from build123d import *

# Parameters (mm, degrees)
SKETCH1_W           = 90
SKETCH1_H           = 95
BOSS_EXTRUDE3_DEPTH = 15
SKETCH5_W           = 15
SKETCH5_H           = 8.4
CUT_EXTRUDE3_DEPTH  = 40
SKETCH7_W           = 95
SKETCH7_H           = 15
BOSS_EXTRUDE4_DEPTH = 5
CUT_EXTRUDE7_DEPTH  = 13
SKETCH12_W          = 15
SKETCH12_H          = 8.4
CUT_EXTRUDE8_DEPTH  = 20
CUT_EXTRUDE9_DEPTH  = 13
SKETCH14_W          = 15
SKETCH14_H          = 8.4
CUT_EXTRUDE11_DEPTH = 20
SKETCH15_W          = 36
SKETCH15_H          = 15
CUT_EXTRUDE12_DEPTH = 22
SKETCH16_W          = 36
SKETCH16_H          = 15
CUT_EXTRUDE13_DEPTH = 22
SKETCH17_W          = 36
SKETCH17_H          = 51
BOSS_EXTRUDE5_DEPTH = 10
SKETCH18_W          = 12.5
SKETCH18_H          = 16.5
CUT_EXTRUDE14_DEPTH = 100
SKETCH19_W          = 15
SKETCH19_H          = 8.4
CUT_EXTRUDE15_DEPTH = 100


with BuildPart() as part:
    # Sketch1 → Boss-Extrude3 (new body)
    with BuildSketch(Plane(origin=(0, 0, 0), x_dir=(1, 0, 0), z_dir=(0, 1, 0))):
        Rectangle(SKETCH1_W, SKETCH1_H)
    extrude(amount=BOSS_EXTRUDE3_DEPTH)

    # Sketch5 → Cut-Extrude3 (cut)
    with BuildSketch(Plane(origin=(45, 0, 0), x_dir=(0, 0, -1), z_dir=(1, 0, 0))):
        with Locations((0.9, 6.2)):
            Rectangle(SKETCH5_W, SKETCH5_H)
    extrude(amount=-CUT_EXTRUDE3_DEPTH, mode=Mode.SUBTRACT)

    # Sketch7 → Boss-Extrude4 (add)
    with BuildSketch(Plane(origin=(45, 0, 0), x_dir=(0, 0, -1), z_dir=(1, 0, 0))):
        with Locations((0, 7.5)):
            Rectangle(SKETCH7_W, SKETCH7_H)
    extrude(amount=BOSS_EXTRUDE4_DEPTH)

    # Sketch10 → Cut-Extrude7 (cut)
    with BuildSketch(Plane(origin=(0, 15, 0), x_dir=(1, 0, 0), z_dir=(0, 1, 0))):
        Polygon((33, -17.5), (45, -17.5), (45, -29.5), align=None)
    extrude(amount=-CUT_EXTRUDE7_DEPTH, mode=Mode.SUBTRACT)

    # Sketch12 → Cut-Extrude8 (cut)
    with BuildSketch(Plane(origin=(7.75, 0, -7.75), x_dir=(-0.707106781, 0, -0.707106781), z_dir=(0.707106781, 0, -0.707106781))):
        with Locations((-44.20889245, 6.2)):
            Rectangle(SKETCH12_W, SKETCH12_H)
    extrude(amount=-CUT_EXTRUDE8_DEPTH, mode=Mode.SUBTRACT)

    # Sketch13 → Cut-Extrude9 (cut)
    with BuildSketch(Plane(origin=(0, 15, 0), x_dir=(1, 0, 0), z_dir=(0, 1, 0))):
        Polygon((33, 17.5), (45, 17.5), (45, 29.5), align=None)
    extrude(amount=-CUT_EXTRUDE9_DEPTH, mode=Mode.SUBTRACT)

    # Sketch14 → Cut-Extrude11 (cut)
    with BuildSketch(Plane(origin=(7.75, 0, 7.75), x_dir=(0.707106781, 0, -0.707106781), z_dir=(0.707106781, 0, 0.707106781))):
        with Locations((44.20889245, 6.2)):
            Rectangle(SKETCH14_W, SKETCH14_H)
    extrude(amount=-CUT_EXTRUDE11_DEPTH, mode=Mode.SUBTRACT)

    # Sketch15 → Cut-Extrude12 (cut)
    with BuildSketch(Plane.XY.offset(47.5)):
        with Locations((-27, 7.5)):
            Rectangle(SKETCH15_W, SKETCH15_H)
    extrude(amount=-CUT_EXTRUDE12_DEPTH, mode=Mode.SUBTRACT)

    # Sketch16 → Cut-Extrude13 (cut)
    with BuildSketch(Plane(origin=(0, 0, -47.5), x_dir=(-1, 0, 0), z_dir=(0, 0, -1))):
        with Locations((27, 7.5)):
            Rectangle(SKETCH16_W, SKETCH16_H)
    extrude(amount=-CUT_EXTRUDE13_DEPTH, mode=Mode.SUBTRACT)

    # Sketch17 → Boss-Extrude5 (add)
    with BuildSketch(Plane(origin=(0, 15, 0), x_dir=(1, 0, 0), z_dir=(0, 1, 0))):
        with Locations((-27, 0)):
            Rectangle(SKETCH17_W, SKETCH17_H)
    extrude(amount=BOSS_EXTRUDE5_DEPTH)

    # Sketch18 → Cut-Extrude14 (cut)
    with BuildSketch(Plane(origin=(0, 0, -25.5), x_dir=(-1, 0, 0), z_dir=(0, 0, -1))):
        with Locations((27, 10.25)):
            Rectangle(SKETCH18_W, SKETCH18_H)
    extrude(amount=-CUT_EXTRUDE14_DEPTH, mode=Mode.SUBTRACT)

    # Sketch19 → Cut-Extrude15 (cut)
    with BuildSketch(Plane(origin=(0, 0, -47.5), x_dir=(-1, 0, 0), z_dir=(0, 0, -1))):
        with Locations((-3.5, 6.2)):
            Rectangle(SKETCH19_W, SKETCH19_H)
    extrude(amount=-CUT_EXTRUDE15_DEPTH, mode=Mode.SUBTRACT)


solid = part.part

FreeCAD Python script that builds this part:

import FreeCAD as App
import Part
import Sketcher
Q = App.Units.Quantity


def add_polygon(sketch, points):
    """Adds a closed chain of lines whose ends are joined by coincident constraints."""
    first, n = sketch.GeometryCount, len(points)
    for a, b in zip(points, points[1:] + points[:1]):
        sketch.addGeometry(Part.LineSegment(App.Vector(*a, 0), App.Vector(*b, 0)), False)
    for i in range(n):
        sketch.addConstraint(Sketcher.Constraint("Coincident", first + i, 2, first + (i + 1) % n, 1))

doc = App.newDocument("Part")
body = doc.addObject("PartDesign::Body", "Body")

# Sketch on XZ plane
sketch1 = body.newObject("Sketcher::SketchObject", "Sketch")
sketch1.AttachmentSupport = (doc.getObject("XZ_Plane"), [""])
sketch1.MapMode = "FlatFace"
add_polygon(sketch1, [(-45, -48), (-45, 48), (45, 48), (45, -48)])  # lines 0-3
sketch1.addConstraint(Sketcher.Constraint("Vertical", 0))
sketch1.addConstraint(Sketcher.Constraint("Horizontal", 1))
sketch1.addConstraint(Sketcher.Constraint("Vertical", 2))
sketch1.addConstraint(Sketcher.Constraint("Horizontal", 3))
sketch1.addConstraint(Sketcher.Constraint("Symmetric", 0, 2, 2, 2, -1, 1))
sketch1.addConstraint(Sketcher.Constraint("DistanceX", 1, 1, 1, 2, Q("90 mm")))
sketch1.addConstraint(Sketcher.Constraint("DistanceY", 0, 1, 0, 2, Q("95 mm")))
pad1 = body.newObject("PartDesign::Pad", "Pad")
pad1.Profile = sketch1
pad1.Length = 15
pad1.Reversed = True

# Sketch on YZ plane
sketch2 = body.newObject("Sketcher::SketchObject", "Sketch001")
sketch2.AttachmentSupport = (doc.getObject("YZ_Plane"), [""])
sketch2.MapMode = "FlatFace"
sketch2.AttachmentOffset = App.Placement(App.Vector(0, 0, 45), App.Rotation())
add_polygon(sketch2, [(10, 7), (2, 7), (2, -8), (10, -8)])  # lines 0-3
sketch2.addConstraint(Sketcher.Constraint("Horizontal", 0))
sketch2.addConstraint(Sketcher.Constraint("Vertical", 1))
sketch2.addConstraint(Sketcher.Constraint("Horizontal", 2))
sketch2.addConstraint(Sketcher.Constraint("Vertical", 3))
sketch2.addConstraint(Sketcher.Constraint("DistanceY", 1, 2, 1, 1, Q("15 mm")))
sketch2.addConstraint(Sketcher.Constraint("DistanceX", 0, 2, 0, 1, Q("8.4 mm")))
sketch2.addConstraint(Sketcher.Constraint("DistanceX", -1, 1, 0, 2, Q("2 mm")))
sketch2.addConstraint(Sketcher.Constraint("DistanceY", -1, 1, 0, 2, Q("6.6 mm")))
pocket1 = body.newObject("PartDesign::Pocket", "Pocket")
pocket1.Profile = sketch2
pocket1.Length = 40

# Sketch on YZ plane
sketch3 = body.newObject("Sketcher::SketchObject", "Sketch002")
sketch3.AttachmentSupport = (doc.getObject("YZ_Plane"), [""])
sketch3.MapMode = "FlatFace"
sketch3.AttachmentOffset = App.Placement(App.Vector(0, 0, 45), App.Rotation())
add_polygon(sketch3, [(15, 48), (0, 48), (0, -48), (15, -48)])  # lines 0-3
sketch3.addConstraint(Sketcher.Constraint("Horizontal", 0))
sketch3.addConstraint(Sketcher.Constraint("Vertical", 1))
sketch3.addConstraint(Sketcher.Constraint("Horizontal", 2))
sketch3.addConstraint(Sketcher.Constraint("Vertical", 3))
sketch3.addConstraint(Sketcher.Constraint("Symmetric", 0, 2, 1, 2, -1, 1))
sketch3.addConstraint(Sketcher.Constraint("DistanceX", 0, 2, 0, 1, Q("15 mm")))
sketch3.addConstraint(Sketcher.Constraint("DistanceY", 1, 2, 1, 1, Q("95 mm")))
pad2 = body.newObject("PartDesign::Pad", "Pad001")
pad2.Profile = sketch3
pad2.Length = 5

# Sketch on XZ plane
sketch4 = body.newObject("Sketcher::SketchObject", "Sketch003")
sketch4.AttachmentSupport = (doc.getObject("XZ_Plane"), [""])
sketch4.MapMode = "FlatFace"
sketch4.AttachmentOffset = App.Placement(App.Vector(0, 0, -15), App.Rotation())
add_polygon(sketch4, [(45, 18), (33, 18), (45, 30)])  # lines 0-2
sketch4.addConstraint(Sketcher.Constraint("Horizontal", 0))
sketch4.addConstraint(Sketcher.Constraint("Vertical", 2))
sketch4.addConstraint(Sketcher.Constraint("Equal", 0, 2))
sketch4.addConstraint(Sketcher.Constraint("DistanceX", 0, 2, 0, 1, Q("12 mm")))
sketch4.addConstraint(Sketcher.Constraint("DistanceX", -1, 1, 0, 2, Q("33 mm")))
sketch4.addConstraint(Sketcher.Constraint("DistanceY", -1, 1, 0, 2, Q("17.5 mm")))
pocket2 = body.newObject("PartDesign::Pocket", "Pocket001")
pocket2.Profile = sketch4
pocket2.Length = 13
pocket2.Reversed = True

# Sketch on an angled plane
sketch5 = body.newObject("Sketcher::SketchObject", "Sketch004")
sketch5.Placement = App.Placement(App.Vector(7.75, 0, -7.75), App.Rotation(App.Vector(-0.707106781, 0, -0.707106781), App.Vector(0, 0.999999999, 0), App.Vector(0.707106781, 0, -0.707106781), "ZXY"))
add_polygon(sketch5, [(-52, 10), (-52, 2), (-37, 2), (-37, 10)])  # lines 0-3
sketch5.addConstraint(Sketcher.Constraint("Vertical", 0))
sketch5.addConstraint(Sketcher.Constraint("Horizontal", 1))
sketch5.addConstraint(Sketcher.Constraint("Vertical", 2))
sketch5.addConstraint(Sketcher.Constraint("Horizontal", 3))
sketch5.addConstraint(Sketcher.Constraint("DistanceX", 1, 1, 1, 2, Q("15 mm")))
sketch5.addConstraint(Sketcher.Constraint("DistanceY", 0, 2, 0, 1, Q("8.4 mm")))
sketch5.addConstraint(Sketcher.Constraint("DistanceY", -1, 1, 0, 2, Q("2 mm")))
sketch5.addConstraint(Sketcher.Constraint("DistanceX", 0, 2, -1, 1, Q("51.708892 mm")))
pocket3 = body.newObject("PartDesign::Pocket", "Pocket002")
pocket3.Profile = sketch5
pocket3.Length = 20

# Sketch on XZ plane
sketch6 = body.newObject("Sketcher::SketchObject", "Sketch005")
sketch6.AttachmentSupport = (doc.getObject("XZ_Plane"), [""])
sketch6.MapMode = "FlatFace"
sketch6.AttachmentOffset = App.Placement(App.Vector(0, 0, -15), App.Rotation())
add_polygon(sketch6, [(33, -18), (45, -18), (45, -30)])  # lines 0-2
sketch6.addConstraint(Sketcher.Constraint("Horizontal", 0))
sketch6.addConstraint(Sketcher.Constraint("Vertical", 1))
sketch6.addConstraint(Sketcher.Constraint("Equal", 0, 1))
sketch6.addConstraint(Sketcher.Constraint("DistanceX", 0, 1, 0, 2, Q("12 mm")))
sketch6.addConstraint(Sketcher.Constraint("DistanceX", -1, 1, 0, 2, Q("45 mm")))
sketch6.addConstraint(Sketcher.Constraint("DistanceY", 0, 2, -1, 1, Q("17.5 mm")))
pocket4 = body.newObject("PartDesign::Pocket", "Pocket003")
pocket4.Profile = sketch6
pocket4.Length = 13
pocket4.Reversed = True

# Sketch on an angled plane
sketch7 = body.newObject("Sketcher::SketchObject", "Sketch006")
sketch7.Placement = App.Placement(App.Vector(7.75, 0, 7.75), App.Rotation(App.Vector(0.707106781, 0, -0.707106781), App.Vector(0, 0.999999999, 0), App.Vector(0.707106781, 0, 0.707106781), "ZXY"))
add_polygon(sketch7, [(37, 10), (37, 2), (52, 2), (52, 10)])  # lines 0-3
sketch7.addConstraint(Sketcher.Constraint("Vertical", 0))
sketch7.addConstraint(Sketcher.Constraint("Horizontal", 1))
sketch7.addConstraint(Sketcher.Constraint("Vertical", 2))
sketch7.addConstraint(Sketcher.Constraint("Horizontal", 3))
sketch7.addConstraint(Sketcher.Constraint("DistanceX", 1, 1, 1, 2, Q("15 mm")))
sketch7.addConstraint(Sketcher.Constraint("DistanceY", 0, 2, 0, 1, Q("8.4 mm")))
sketch7.addConstraint(Sketcher.Constraint("DistanceY", -1, 1, 0, 2, Q("2 mm")))
sketch7.addConstraint(Sketcher.Constraint("DistanceX", -1, 1, 0, 2, Q("36.708892 mm")))
pocket5 = body.newObject("PartDesign::Pocket", "Pocket004")
pocket5.Profile = sketch7
pocket5.Length = 20

# Sketch on XY plane
sketch8 = body.newObject("Sketcher::SketchObject", "Sketch007")
sketch8.AttachmentSupport = (doc.getObject("XY_Plane"), [""])
sketch8.MapMode = "FlatFace"
sketch8.AttachmentOffset = App.Placement(App.Vector(0, 0, 47.5), App.Rotation())
add_polygon(sketch8, [(-45, 15), (-45, 0), (-9, 0), (-9, 15)])  # lines 0-3
sketch8.addConstraint(Sketcher.Constraint("Vertical", 0))
sketch8.addConstraint(Sketcher.Constraint("Horizontal", 1))
sketch8.addConstraint(Sketcher.Constraint("Vertical", 2))
sketch8.addConstraint(Sketcher.Constraint("Horizontal", 3))
sketch8.addConstraint(Sketcher.Constraint("PointOnObject", 0, 2, -1))
sketch8.addConstraint(Sketcher.Constraint("DistanceX", 1, 1, 1, 2, Q("36 mm")))
sketch8.addConstraint(Sketcher.Constraint("DistanceY", 0, 2, 0, 1, Q("15 mm")))
sketch8.addConstraint(Sketcher.Constraint("DistanceX", 0, 2, -1, 1, Q("45 mm")))
pocket6 = body.newObject("PartDesign::Pocket", "Pocket005")
pocket6.Profile = sketch8
pocket6.Length = 22

# Sketch on XY plane
sketch9 = body.newObject("Sketcher::SketchObject", "Sketch008")
sketch9.AttachmentSupport = (doc.getObject("XY_Plane"), [""])
sketch9.MapMode = "FlatFace"
sketch9.AttachmentOffset = App.Placement(App.Vector(0, 0, -47.5), App.Rotation())
add_polygon(sketch9, [(-9, 15), (-9, 0), (-45, 0), (-45, 15)])  # lines 0-3
sketch9.addConstraint(Sketcher.Constraint("Vertical", 0))
sketch9.addConstraint(Sketcher.Constraint("Horizontal", 1))
sketch9.addConstraint(Sketcher.Constraint("Vertical", 2))
sketch9.addConstraint(Sketcher.Constraint("Horizontal", 3))
sketch9.addConstraint(Sketcher.Constraint("PointOnObject", 0, 2, -1))
sketch9.addConstraint(Sketcher.Constraint("DistanceX", 1, 2, 1, 1, Q("36 mm")))
sketch9.addConstraint(Sketcher.Constraint("DistanceY", 0, 2, 0, 1, Q("15 mm")))
sketch9.addConstraint(Sketcher.Constraint("DistanceX", 0, 2, -1, 1, Q("9 mm")))
pocket7 = body.newObject("PartDesign::Pocket", "Pocket006")
pocket7.Profile = sketch9
pocket7.Length = 22
pocket7.Reversed = True

# Sketch on XZ plane
sketch10 = body.newObject("Sketcher::SketchObject", "Sketch009")
sketch10.AttachmentSupport = (doc.getObject("XZ_Plane"), [""])
sketch10.MapMode = "FlatFace"
sketch10.AttachmentOffset = App.Placement(App.Vector(0, 0, -15), App.Rotation())
add_polygon(sketch10, [(-45, -26), (-45, 26), (-9, 26), (-9, -26)])  # lines 0-3
sketch10.addConstraint(Sketcher.Constraint("Vertical", 0))
sketch10.addConstraint(Sketcher.Constraint("Horizontal", 1))
sketch10.addConstraint(Sketcher.Constraint("Vertical", 2))
sketch10.addConstraint(Sketcher.Constraint("Horizontal", 3))
sketch10.addConstraint(Sketcher.Constraint("DistanceX", 1, 1, 1, 2, Q("36 mm")))
sketch10.addConstraint(Sketcher.Constraint("DistanceY", 0, 1, 0, 2, Q("51 mm")))
sketch10.addConstraint(Sketcher.Constraint("DistanceX", 0, 2, -1, 1, Q("45 mm")))
sketch10.addConstraint(Sketcher.Constraint("DistanceY", -1, 1, 0, 2, Q("25.5 mm")))
pad3 = body.newObject("PartDesign::Pad", "Pad002")
pad3.Profile = sketch10
pad3.Length = 10
pad3.Reversed = True

# Sketch on XY plane
sketch11 = body.newObject("Sketcher::SketchObject", "Sketch010")
sketch11.AttachmentSupport = (doc.getObject("XY_Plane"), [""])
sketch11.MapMode = "FlatFace"
sketch11.AttachmentOffset = App.Placement(App.Vector(0, 0, -25.5), App.Rotation())
add_polygon(sketch11, [(-21, 18), (-21, 2), (-33, 2), (-33, 18)])  # lines 0-3
sketch11.addConstraint(Sketcher.Constraint("Vertical", 0))
sketch11.addConstraint(Sketcher.Constraint("Horizontal", 1))
sketch11.addConstraint(Sketcher.Constraint("Vertical", 2))
sketch11.addConstraint(Sketcher.Constraint("Horizontal", 3))
sketch11.addConstraint(Sketcher.Constraint("DistanceX", 1, 2, 1, 1, Q("12.5 mm")))
sketch11.addConstraint(Sketcher.Constraint("DistanceY", 0, 2, 0, 1, Q("16.5 mm")))
sketch11.addConstraint(Sketcher.Constraint("DistanceY", -1, 1, 0, 2, Q("2 mm")))
sketch11.addConstraint(Sketcher.Constraint("DistanceX", 0, 2, -1, 1, Q("20.75 mm")))
pocket8 = body.newObject("PartDesign::Pocket", "Pocket007")
pocket8.Profile = sketch11
pocket8.Length = 100
pocket8.Reversed = True

# Sketch on XY plane
sketch12 = body.newObject("Sketcher::SketchObject", "Sketch011")
sketch12.AttachmentSupport = (doc.getObject("XY_Plane"), [""])
sketch12.MapMode = "FlatFace"
sketch12.AttachmentOffset = App.Placement(App.Vector(0, 0, -47.5), App.Rotation())
add_polygon(sketch12, [(11, 10), (11, 2), (-4, 2), (-4, 10)])  # lines 0-3
sketch12.addConstraint(Sketcher.Constraint("Vertical", 0))
sketch12.addConstraint(Sketcher.Constraint("Horizontal", 1))
sketch12.addConstraint(Sketcher.Constraint("Vertical", 2))
sketch12.addConstraint(Sketcher.Constraint("Horizontal", 3))
sketch12.addConstraint(Sketcher.Constraint("DistanceX", 1, 2, 1, 1, Q("15 mm")))
sketch12.addConstraint(Sketcher.Constraint("DistanceY", 0, 2, 0, 1, Q("8.4 mm")))
sketch12.addConstraint(Sketcher.Constraint("DistanceX", -1, 1, 0, 2, Q("11 mm")))
sketch12.addConstraint(Sketcher.Constraint("DistanceY", -1, 1, 0, 2, Q("2 mm")))
pocket9 = body.newObject("PartDesign::Pocket", "Pocket008")
pocket9.Profile = sketch12
pocket9.Length = 100
pocket9.Reversed = True

doc.recompute()
